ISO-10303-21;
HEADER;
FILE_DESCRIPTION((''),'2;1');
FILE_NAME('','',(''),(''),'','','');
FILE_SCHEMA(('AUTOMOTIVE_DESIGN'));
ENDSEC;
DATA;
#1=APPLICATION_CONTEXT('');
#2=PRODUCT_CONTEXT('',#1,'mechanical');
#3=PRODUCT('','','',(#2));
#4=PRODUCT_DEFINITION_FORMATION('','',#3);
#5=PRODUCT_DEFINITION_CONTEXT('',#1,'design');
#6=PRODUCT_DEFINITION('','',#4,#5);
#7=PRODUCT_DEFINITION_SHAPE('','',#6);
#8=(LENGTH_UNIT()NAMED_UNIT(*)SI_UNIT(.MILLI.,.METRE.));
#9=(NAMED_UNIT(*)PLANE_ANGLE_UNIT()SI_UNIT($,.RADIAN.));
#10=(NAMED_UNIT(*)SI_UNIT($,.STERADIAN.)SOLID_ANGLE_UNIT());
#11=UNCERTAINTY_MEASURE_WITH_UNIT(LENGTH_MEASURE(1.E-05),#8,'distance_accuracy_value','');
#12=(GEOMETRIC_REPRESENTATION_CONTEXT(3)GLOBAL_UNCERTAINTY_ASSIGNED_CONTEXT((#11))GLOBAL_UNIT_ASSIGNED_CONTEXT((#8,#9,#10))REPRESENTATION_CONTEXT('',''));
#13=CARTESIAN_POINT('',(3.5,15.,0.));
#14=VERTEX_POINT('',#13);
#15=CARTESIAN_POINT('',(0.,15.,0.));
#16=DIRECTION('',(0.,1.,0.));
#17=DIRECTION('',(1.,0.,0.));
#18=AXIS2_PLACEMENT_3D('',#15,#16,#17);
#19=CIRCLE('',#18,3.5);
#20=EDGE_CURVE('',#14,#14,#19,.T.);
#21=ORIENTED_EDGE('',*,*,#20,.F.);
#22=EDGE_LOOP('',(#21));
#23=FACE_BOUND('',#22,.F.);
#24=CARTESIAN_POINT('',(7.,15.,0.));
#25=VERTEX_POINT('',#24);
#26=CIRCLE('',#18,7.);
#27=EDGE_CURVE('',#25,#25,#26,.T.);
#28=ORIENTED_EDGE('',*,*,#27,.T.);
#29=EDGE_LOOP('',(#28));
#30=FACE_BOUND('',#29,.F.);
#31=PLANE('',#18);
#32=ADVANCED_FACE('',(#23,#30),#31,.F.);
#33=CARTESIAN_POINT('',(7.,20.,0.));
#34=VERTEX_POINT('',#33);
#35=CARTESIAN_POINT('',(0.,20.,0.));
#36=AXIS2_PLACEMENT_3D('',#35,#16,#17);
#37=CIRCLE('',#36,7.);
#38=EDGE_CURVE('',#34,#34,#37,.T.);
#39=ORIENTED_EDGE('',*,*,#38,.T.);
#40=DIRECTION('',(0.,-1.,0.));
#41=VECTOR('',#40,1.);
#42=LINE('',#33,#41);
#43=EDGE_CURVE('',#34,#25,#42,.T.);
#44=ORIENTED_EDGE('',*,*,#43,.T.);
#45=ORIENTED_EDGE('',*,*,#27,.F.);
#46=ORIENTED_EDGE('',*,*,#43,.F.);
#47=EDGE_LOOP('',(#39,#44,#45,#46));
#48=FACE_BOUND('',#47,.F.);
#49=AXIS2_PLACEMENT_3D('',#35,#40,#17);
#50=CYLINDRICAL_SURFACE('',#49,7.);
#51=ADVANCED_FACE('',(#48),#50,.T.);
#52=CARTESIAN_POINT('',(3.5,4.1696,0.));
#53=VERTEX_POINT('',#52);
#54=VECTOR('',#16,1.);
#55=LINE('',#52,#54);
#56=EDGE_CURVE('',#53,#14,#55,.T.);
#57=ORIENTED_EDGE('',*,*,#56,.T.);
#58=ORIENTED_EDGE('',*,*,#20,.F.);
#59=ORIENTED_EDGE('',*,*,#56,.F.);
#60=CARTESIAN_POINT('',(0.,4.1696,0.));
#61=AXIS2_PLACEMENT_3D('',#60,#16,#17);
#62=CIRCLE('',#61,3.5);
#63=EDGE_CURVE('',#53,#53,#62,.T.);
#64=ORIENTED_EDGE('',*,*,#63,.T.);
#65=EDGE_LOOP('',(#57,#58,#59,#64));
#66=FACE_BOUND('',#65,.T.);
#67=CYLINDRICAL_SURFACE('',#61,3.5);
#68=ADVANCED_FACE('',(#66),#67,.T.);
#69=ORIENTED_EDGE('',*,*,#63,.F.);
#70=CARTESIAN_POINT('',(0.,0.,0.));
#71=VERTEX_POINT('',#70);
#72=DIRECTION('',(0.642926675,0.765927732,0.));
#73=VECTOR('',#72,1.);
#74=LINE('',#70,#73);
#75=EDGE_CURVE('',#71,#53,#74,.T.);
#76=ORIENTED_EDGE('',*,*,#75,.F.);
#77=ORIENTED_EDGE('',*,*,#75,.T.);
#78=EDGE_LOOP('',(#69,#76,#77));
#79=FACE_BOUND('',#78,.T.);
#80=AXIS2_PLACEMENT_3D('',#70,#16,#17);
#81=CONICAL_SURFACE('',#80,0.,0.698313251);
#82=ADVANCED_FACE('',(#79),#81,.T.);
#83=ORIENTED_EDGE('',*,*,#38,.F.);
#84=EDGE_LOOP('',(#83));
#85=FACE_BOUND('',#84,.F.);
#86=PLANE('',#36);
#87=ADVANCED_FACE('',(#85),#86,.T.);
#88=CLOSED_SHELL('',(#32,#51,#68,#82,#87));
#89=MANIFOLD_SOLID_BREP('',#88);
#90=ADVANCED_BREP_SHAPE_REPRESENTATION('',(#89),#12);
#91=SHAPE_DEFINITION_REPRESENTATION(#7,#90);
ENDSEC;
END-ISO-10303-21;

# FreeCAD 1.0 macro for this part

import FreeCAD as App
import Part
import Sketcher

V = App.Vector
Q = App.Units.Quantity


def add_polygon(sketch, points):
    """Adds a closed chain of lines whose ends are joined by coincident constraints."""
    first, n = sketch.GeometryCount, len(points)
    for a, b in zip(points, points[1:] + points[:1]):
        sketch.addGeometry(Part.LineSegment(App.Vector(*a, 0), App.Vector(*b, 0)), False)
    for i in range(n):
        sketch.addConstraint(Sketcher.Constraint("Coincident", first + i, 2, first + (i + 1) % n, 1))

doc = App.newDocument("Part")
body = doc.addObject("PartDesign::Body", "Body")

sketch1 = doc.addObject("Sketcher::SketchObject", "Sketch")
body.addObject(sketch1)
sketch1.AttachmentSupport = (doc.XY_Plane, [""])
sketch1.MapMode = "FlatFace"
add_polygon(sketch1, [(0, 20), (0, 0), (3.5, 4.2), (3.5, 15), (7, 15), (7, 20)])
sketch1.addConstraint([
    Sketcher.Constraint("Vertical", 0),
    Sketcher.Constraint("Vertical", 2),
    Sketcher.Constraint("Horizontal", 3),
    Sketcher.Constraint("Vertical", 4),
    Sketcher.Constraint("Horizontal", 5),
    Sketcher.Constraint("Coincident", 0, 2, -1, 1),
    Sketcher.Constraint("DistanceX", 5, 2, 5, 1, Q("7 mm")),
    Sketcher.Constraint("DistanceY", 0, 2, 0, 1, Q("20 mm")),
    Sketcher.Constraint("DistanceY", 4, 1, 4, 2, Q("5 mm")),
    Sketcher.Constraint("DistanceX", 3, 1, 3, 2, Q("3.5 mm")),
    Sketcher.Constraint("Angle", 1, Q("49.9896 deg")),
])
revolution = doc.addObject("PartDesign::Revolution", "Revolution")
body.addObject(revolution)
revolution.Profile = sketch1
revolution.ReferenceAxis = (sketch1, ["V_Axis"])
revolution.Angle = 360

doc.recompute()
